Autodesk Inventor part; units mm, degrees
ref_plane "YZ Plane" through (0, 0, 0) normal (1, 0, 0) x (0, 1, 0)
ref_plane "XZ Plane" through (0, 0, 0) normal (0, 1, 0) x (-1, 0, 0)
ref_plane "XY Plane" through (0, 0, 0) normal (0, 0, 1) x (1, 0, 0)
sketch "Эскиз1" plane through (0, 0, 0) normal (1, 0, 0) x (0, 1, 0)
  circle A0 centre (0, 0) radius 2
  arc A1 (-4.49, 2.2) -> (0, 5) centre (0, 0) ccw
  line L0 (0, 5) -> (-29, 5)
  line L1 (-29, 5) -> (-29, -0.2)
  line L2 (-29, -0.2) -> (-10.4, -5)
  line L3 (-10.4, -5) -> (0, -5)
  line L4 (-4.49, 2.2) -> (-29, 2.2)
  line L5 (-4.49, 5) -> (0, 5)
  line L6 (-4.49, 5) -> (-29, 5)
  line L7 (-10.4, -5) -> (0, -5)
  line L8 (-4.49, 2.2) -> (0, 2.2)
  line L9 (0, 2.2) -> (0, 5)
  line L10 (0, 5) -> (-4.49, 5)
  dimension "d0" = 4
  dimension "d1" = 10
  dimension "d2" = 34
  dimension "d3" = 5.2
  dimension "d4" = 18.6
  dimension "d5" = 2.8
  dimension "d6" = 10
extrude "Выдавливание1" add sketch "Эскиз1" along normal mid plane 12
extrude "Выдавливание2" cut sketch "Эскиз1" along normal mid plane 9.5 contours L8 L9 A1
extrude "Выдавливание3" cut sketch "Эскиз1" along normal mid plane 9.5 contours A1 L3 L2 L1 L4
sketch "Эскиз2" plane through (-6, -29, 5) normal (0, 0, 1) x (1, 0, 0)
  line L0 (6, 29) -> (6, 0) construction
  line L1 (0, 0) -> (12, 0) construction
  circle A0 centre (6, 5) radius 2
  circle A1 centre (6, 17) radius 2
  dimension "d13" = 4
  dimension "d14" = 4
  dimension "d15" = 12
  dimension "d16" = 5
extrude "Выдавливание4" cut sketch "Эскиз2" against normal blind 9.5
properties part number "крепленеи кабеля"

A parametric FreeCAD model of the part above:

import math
import FreeCAD as App
import Part
import Sketcher

V = App.Vector

doc = App.newDocument("Part")
body = doc.addObject("PartDesign::Body", "Body")

sketch1 = body.newObject("Sketcher::SketchObject", "Sketch")
sketch1.AttachmentSupport = (doc.getObject("YZ_Plane"), [""])
sketch1.MapMode = "FlatFace"
sketch1.addGeometry([
    Part.ArcOfCircle(Part.Circle(V(0, 0, 0), V(0, 0, 1), 5), math.radians(-90), math.radians(90)),
    Part.LineSegment(V(0, 5, 0), V(-29, 5, 0)),
    Part.LineSegment(V(-29, 5, 0), V(-29, -0.2, 0)),
    Part.LineSegment(V(-29, -0.2, 0), V(-10.4, -5, 0)),
    Part.LineSegment(V(-10.4, -5, 0), V(0, -5, 0)),
    Part.Circle(V(0, 0, 0), V(0, 0, 1), 2),
], False)
sketch1.addConstraint([
    Sketcher.Constraint("Tangent", 0, 2, 1, 1),
    Sketcher.Constraint("Coincident", 1, 2, 2, 1),
    Sketcher.Constraint("Coincident", 2, 2, 3, 1),
    Sketcher.Constraint("Coincident", 3, 2, 4, 1),
    Sketcher.Constraint("Tangent", 4, 2, 0, 1),
    Sketcher.Constraint("Horizontal", 1),
    Sketcher.Constraint("Vertical", 2),
    Sketcher.Constraint("Horizontal", 4),
    Sketcher.Constraint("Coincident", 0, 3, -1, 1),
    Sketcher.Constraint("Coincident", 5, 3, -1, 1),
    Sketcher.Constraint("Diameter", 5, 4.0),
    Sketcher.Constraint("Radius", 0, 5.0),
    Sketcher.Constraint("DistanceY", 2, 2, 2, 1, 5.2),
    Sketcher.Constraint("DistanceX", 2, 2, 3, 2, 18.6),
    Sketcher.Constraint("DistanceX", 1, 2, 1, 1, 29.0),
])
pad1 = body.newObject("PartDesign::Pad", "Pad")
pad1.Profile = sketch1
pad1.Length = 12
pad1.Midplane = True

sketch2 = body.newObject("Sketcher::SketchObject", "Sketch001")
sketch2.AttachmentSupport = (doc.getObject("YZ_Plane"), [""])
sketch2.MapMode = "FlatFace"
sketch2.addGeometry([
    Part.LineSegment(V(0, 2.2, 0), V(-4.5, 2.2, 0)),
    Part.ArcOfCircle(Part.Circle(V(0, 0, 0), V(0, 0, 1), 5), math.radians(154), math.radians(450)),
    Part.LineSegment(V(0, 5, 0), V(0, 2.2, 0)),
    Part.Circle(V(0, 0, 0), V(0, 0, 1), 2),
], False)
sketch2.addConstraint([
    Sketcher.Constraint("Coincident", 0, 2, 1, 1),
    Sketcher.Constraint("Coincident", 1, 2, 2, 1),
    Sketcher.Constraint("Coincident", 2, 2, 0, 1),
    Sketcher.Constraint("Horizontal", 0),
    Sketcher.Constraint("Vertical", 2),
    Sketcher.Constraint("Coincident", 1, 3, -1, 1),
    Sketcher.Constraint("Coincident", 3, 3, -1, 1),
    Sketcher.Constraint("PointOnObject", 1, 2, -2),
    Sketcher.Constraint("Diameter", 3, 4.0),
    Sketcher.Constraint("Radius", 1, 5.0),
    Sketcher.Constraint("DistanceY", 2, 2, 2, 1, 2.8),
])
pocket1 = body.newObject("PartDesign::Pocket", "Pocket")
pocket1.Profile = sketch2
pocket1.Length = 9.5
pocket1.Midplane = True

sketch3 = body.newObject("Sketcher::SketchObject", "Sketch002")
sketch3.AttachmentSupport = (doc.getObject("YZ_Plane"), [""])
sketch3.MapMode = "FlatFace"
sketch3.addGeometry([
    Part.ArcOfCircle(Part.Circle(V(0, 0, 0), V(0, 0, 1), 5), math.radians(154), math.radians(270)),
    Part.LineSegment(V(-4.5, 2.2, 0), V(-29, 2.2, 0)),
    Part.LineSegment(V(-29, 2.2, 0), V(-29, -0.2, 0)),
    Part.LineSegment(V(-29, -0.2, 0), V(-10.4, -5, 0)),
    Part.LineSegment(V(-10.4, -5, 0), V(0, -5, 0)),
], False)
sketch3.addConstraint([
    Sketcher.Constraint("Coincident", 0, 1, 1, 1),
    Sketcher.Constraint("Coincident", 1, 2, 2, 1),
    Sketcher.Constraint("Coincident", 2, 2, 3, 1),
    Sketcher.Constraint("Coincident", 3, 2, 4, 1),
    Sketcher.Constraint("Tangent", 4, 2, 0, 2),
    Sketcher.Constraint("Horizontal", 1),
    Sketcher.Constraint("Vertical", 2),
    Sketcher.Constraint("Horizontal", 4),
    Sketcher.Constraint("Coincident", 0, 3, -1, 1),
    Sketcher.Constraint("Radius", 0, 5.0),
    Sketcher.Constraint("DistanceX", 2, 2, 3, 2, 18.6),
    Sketcher.Constraint("DistanceX", 4, 1, 4, 2, 10.4),
    Sketcher.Constraint("DistanceY", 2, 2, 2, 1, 2.4),
    Sketcher.Constraint("DistanceX", 1, 2, 1, 1, 24.51),
])
pocket2 = body.newObject("PartDesign::Pocket", "Pocket001")
pocket2.Profile = sketch3
pocket2.Length = 9.5
pocket2.Midplane = True

sketch4 = body.newObject("Sketcher::SketchObject", "Sketch003")
sketch4.AttachmentSupport = (doc.getObject("XY_Plane"), [""])
sketch4.MapMode = "FlatFace"
sketch4.AttachmentOffset = App.Placement(V(0, 0, 5), App.Rotation())
sketch4.addGeometry([
    Part.Circle(V(0, -24, 0), V(0, 0, 1), 2),
    Part.Circle(V(0, -12, 0), V(0, 0, 1), 2),
], False)
sketch4.addConstraint([
    Sketcher.Constraint("Equal", 0, 1),
    Sketcher.Constraint("PointOnObject", 0, 3, -2),
    Sketcher.Constraint("PointOnObject", 1, 3, -2),
    Sketcher.Constraint("Diameter", 0, 4.0),
    Sketcher.Constraint("DistanceY", 1, 3, -1, 1, 12.0),
    Sketcher.Constraint("DistanceY", 0, 3, 1, 3, 12.0),
])
pocket3 = body.newObject("PartDesign::Pocket", "Pocket002")
pocket3.Profile = sketch4
pocket3.Length = 9.5

doc.recompute()
